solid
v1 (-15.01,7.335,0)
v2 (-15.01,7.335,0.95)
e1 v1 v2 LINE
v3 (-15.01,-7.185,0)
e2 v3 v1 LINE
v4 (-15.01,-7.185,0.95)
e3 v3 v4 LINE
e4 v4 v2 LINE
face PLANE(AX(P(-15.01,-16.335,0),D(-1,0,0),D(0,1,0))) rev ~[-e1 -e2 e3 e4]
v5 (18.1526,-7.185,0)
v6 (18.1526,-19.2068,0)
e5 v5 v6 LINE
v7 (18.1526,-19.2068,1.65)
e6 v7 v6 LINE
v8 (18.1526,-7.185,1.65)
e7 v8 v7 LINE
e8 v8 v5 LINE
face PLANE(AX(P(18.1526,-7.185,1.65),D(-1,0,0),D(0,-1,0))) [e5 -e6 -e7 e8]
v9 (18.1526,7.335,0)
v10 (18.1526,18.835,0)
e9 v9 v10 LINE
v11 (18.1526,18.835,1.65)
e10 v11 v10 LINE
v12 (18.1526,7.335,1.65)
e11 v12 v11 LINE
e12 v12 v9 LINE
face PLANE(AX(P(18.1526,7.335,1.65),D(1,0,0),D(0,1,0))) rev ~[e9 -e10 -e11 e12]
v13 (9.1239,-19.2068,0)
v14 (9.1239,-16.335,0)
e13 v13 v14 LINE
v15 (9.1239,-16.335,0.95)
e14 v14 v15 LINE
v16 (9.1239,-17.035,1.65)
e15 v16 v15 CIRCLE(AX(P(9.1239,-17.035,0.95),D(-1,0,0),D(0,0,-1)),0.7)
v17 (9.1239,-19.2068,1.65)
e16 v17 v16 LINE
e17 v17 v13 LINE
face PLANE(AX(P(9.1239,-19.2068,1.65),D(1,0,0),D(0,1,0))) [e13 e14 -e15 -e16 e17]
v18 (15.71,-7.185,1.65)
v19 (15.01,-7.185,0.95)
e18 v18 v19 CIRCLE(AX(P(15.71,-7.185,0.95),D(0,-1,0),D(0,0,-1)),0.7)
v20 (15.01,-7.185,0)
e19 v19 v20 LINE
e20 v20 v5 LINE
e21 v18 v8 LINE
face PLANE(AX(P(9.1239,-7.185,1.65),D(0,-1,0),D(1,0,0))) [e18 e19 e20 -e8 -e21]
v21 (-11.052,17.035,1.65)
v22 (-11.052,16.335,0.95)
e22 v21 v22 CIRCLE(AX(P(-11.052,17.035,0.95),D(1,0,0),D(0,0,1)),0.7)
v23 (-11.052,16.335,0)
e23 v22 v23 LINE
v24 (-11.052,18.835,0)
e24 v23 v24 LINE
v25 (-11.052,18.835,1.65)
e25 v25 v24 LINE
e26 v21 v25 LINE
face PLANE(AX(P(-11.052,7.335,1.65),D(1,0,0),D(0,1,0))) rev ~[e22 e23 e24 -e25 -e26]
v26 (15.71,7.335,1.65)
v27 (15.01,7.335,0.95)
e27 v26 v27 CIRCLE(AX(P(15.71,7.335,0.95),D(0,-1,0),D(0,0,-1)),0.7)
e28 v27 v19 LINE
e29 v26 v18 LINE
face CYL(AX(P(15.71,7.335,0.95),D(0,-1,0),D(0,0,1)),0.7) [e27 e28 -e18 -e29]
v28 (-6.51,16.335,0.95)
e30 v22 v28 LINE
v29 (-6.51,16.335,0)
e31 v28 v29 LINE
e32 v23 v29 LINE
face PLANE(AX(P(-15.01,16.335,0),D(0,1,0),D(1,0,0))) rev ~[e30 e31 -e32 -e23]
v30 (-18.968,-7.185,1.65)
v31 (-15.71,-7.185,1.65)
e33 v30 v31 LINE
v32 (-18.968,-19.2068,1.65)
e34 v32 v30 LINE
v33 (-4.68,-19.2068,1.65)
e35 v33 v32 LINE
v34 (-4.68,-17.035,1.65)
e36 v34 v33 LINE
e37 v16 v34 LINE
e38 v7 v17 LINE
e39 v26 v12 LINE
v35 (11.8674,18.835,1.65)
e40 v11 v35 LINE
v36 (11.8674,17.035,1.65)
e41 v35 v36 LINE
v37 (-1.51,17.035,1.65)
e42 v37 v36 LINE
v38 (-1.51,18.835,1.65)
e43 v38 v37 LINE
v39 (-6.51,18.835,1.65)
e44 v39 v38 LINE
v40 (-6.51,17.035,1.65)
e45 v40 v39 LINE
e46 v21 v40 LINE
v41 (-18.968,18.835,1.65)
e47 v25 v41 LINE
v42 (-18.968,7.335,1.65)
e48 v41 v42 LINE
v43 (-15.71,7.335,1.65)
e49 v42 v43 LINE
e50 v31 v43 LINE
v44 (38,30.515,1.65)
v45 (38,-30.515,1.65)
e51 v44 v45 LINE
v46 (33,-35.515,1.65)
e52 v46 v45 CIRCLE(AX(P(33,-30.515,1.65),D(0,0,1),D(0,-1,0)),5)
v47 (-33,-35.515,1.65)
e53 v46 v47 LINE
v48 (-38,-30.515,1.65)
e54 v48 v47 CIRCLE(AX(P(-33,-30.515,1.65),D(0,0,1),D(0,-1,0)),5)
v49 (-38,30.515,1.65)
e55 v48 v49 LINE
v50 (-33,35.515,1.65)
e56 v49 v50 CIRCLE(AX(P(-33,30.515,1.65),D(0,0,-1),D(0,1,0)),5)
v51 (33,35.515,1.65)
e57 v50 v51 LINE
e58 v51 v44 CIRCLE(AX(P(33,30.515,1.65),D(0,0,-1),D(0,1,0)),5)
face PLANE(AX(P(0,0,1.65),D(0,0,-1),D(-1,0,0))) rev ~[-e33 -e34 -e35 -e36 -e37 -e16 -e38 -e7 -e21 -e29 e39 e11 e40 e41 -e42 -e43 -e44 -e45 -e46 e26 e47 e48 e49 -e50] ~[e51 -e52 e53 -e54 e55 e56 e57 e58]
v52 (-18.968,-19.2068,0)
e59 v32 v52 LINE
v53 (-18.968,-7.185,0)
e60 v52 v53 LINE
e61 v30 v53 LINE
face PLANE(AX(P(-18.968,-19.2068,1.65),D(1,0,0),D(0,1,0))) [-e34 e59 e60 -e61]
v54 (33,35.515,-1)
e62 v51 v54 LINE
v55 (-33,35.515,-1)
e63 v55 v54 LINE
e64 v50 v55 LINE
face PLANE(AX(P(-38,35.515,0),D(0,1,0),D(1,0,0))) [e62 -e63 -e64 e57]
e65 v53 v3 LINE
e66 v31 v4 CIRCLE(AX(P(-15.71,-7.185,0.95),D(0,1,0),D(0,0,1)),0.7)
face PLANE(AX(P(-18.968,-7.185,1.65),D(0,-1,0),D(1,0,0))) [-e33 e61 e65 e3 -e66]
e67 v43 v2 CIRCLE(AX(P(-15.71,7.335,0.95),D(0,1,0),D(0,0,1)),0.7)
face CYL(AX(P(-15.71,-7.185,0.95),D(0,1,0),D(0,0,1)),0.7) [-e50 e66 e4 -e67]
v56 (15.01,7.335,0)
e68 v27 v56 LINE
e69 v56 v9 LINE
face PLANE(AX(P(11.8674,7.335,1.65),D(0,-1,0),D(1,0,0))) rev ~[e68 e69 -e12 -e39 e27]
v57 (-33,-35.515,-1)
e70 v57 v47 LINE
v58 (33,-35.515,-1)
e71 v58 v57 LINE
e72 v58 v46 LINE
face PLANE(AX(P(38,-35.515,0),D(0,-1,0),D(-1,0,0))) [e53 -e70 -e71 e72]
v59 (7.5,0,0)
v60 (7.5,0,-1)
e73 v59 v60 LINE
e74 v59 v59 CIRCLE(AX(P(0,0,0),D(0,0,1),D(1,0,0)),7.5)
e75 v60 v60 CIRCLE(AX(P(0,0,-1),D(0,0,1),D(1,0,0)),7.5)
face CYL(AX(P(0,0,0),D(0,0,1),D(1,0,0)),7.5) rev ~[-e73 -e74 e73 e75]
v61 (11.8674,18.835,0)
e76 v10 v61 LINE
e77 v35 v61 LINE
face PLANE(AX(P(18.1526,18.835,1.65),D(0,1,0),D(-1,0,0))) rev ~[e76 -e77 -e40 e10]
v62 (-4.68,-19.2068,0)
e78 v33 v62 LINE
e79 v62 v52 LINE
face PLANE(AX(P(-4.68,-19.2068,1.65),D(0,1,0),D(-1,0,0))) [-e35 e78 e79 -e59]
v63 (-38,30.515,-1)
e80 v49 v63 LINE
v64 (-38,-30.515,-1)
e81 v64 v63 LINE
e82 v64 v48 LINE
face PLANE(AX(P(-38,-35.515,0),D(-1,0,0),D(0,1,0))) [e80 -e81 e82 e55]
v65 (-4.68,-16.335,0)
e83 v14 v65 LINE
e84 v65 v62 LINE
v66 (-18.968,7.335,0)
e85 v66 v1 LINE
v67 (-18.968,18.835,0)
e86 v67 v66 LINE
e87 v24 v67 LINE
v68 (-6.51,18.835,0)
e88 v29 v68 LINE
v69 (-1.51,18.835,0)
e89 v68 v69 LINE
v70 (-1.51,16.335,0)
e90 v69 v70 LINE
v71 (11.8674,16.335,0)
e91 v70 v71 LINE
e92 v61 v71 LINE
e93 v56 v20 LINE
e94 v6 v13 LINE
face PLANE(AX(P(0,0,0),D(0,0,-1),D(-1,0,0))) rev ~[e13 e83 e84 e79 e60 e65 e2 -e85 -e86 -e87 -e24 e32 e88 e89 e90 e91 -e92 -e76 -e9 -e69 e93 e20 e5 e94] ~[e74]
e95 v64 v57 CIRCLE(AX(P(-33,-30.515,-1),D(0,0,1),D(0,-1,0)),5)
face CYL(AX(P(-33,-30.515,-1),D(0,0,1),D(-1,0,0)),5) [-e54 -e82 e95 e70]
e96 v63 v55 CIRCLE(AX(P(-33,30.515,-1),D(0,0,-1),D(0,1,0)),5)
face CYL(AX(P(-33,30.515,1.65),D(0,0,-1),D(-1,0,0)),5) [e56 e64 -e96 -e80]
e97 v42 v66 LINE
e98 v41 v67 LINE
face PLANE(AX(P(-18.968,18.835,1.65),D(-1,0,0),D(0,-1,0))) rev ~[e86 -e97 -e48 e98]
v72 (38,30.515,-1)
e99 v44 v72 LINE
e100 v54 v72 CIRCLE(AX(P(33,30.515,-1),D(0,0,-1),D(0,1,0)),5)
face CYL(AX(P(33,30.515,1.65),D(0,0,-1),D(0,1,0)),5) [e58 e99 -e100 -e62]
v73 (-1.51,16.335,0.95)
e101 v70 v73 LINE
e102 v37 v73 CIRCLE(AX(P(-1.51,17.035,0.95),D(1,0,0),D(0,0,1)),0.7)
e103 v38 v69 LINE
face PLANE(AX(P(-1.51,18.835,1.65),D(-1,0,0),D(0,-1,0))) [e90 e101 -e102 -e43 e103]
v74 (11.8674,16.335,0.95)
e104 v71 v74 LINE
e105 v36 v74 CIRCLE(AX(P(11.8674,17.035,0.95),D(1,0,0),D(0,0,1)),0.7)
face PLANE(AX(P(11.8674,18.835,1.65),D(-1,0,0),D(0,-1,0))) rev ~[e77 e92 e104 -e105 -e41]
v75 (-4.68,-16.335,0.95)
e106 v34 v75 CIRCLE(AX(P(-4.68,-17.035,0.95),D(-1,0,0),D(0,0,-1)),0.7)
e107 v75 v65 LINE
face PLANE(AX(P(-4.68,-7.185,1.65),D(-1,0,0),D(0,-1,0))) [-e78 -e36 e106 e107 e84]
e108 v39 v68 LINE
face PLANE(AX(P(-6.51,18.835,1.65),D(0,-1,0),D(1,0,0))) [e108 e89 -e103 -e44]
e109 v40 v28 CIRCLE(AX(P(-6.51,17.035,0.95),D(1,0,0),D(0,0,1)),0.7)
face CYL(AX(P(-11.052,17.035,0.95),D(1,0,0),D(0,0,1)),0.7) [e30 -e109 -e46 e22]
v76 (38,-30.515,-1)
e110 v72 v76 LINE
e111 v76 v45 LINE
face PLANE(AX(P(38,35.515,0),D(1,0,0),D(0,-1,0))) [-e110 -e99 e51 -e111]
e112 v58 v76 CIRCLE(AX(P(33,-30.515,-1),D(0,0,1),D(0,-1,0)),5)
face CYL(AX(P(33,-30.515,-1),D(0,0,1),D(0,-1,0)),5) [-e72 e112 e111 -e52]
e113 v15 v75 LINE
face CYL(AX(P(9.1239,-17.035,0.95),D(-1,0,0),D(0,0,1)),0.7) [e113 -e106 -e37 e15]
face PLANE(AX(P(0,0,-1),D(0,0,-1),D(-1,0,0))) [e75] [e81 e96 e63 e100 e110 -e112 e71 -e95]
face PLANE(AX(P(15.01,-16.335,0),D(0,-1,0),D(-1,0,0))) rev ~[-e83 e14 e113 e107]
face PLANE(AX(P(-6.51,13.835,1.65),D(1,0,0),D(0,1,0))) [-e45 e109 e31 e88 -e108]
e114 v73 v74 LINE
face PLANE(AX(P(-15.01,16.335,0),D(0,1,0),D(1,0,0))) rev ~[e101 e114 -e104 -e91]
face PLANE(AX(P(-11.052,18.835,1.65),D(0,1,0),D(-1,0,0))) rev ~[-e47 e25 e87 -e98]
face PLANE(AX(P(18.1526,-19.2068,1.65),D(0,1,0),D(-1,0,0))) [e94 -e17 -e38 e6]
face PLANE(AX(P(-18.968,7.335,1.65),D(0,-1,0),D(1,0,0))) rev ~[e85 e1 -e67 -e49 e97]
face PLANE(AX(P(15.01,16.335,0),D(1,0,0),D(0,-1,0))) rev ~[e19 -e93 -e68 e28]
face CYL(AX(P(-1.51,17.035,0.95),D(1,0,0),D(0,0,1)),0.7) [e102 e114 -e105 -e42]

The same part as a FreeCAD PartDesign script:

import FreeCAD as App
import Part
import Sketcher


def edges_at(feature, points):
    """Names of the edges that pass closest to the given points."""
    edges = feature.Shape.Edges
    near = lambda p: min(range(len(edges)), key=lambda i: edges[i].distToShape(Part.Vertex(*p))[0])
    return sorted({f"Edge{near(p) + 1}" for p in points})


def add_polygon(sketch, points):
    """Adds a closed chain of lines whose ends are joined by coincident constraints."""
    first, n = sketch.GeometryCount, len(points)
    for a, b in zip(points, points[1:] + points[:1]):
        sketch.addGeometry(Part.LineSegment(App.Vector(*a, 0), App.Vector(*b, 0)), False)
    for i in range(n):
        sketch.addConstraint(Sketcher.Constraint("Coincident", first + i, 2, first + (i + 1) % n, 1))

doc = App.newDocument("Part")
body = doc.addObject("PartDesign::Body", "Body")

# Sketch on XY plane
sketch1 = doc.addObject("Sketcher::SketchObject", "Sketch")
body.addObject(sketch1)
sketch1.AttachmentSupport = (doc.XY_Plane, [""])
sketch1.MapMode = "FlatFace"
add_polygon(sketch1, [(-38, 36), (-38, -36), (38, -36), (38, 36)])  # lines 0-3
add_polygon(sketch1, [(15, -16), (-15, -16), (-15, 16), (15, 16)])  # lines 4-7
sketch1.addConstraint(Sketcher.Constraint("Vertical", 0))
sketch1.addConstraint(Sketcher.Constraint("Horizontal", 1))
sketch1.addConstraint(Sketcher.Constraint("Vertical", 2))
sketch1.addConstraint(Sketcher.Constraint("Horizontal", 3))
sketch1.addConstraint(Sketcher.Constraint("Horizontal", 4))
sketch1.addConstraint(Sketcher.Constraint("Vertical", 5))
sketch1.addConstraint(Sketcher.Constraint("Horizontal", 6))
sketch1.addConstraint(Sketcher.Constraint("Vertical", 7))
sketch1.addConstraint(Sketcher.Constraint("Symmetric", 0, 2, 2, 2, -1, 1))
sketch1.addConstraint(Sketcher.Constraint("Symmetric", 4, 2, 6, 2, -1, 1))
sketch1.addConstraint(Sketcher.Constraint("DistanceX", 1, 1, 1, 2, 76.0))
sketch1.addConstraint(Sketcher.Constraint("DistanceX", 4, 2, 4, 1, 30.02))
sketch1.addConstraint(Sketcher.Constraint("DistanceY", 0, 2, 0, 1, 71.03))
sketch1.addConstraint(Sketcher.Constraint("DistanceY", 5, 1, 5, 2, 32.67))
pad1 = doc.addObject("PartDesign::Pad", "Pad")
body.addObject(pad1)
pad1.Profile = sketch1
pad1.Length = 1.65

# Sketch on XY plane
sketch2 = doc.addObject("Sketcher::SketchObject", "Sketch001")
body.addObject(sketch2)
sketch2.AttachmentSupport = (doc.XY_Plane, [""])
sketch2.MapMode = "FlatFace"
add_polygon(sketch2, [(-38, -36), (38, -36), (38, 36), (-38, 36)])  # lines 0-3
sketch2.addConstraint(Sketcher.Constraint("Horizontal", 0))
sketch2.addConstraint(Sketcher.Constraint("Vertical", 1))
sketch2.addConstraint(Sketcher.Constraint("Horizontal", 2))
sketch2.addConstraint(Sketcher.Constraint("Vertical", 3))
sketch2.addConstraint(Sketcher.Constraint("Symmetric", 0, 2, 2, 2, -1, 1))
sketch2.addConstraint(Sketcher.Constraint("DistanceX", 0, 1, 0, 2, 76.0))
sketch2.addConstraint(Sketcher.Constraint("DistanceY", 1, 1, 1, 2, 71.03))
pad2 = doc.addObject("PartDesign::Pad", "Pad001")
body.addObject(pad2)
pad2.Profile = sketch2
pad2.Length = 1
pad2.Reversed = True

# Sketch on XY plane
sketch3 = doc.addObject("Sketcher::SketchObject", "Sketch002")
body.addObject(sketch3)
sketch3.AttachmentSupport = (doc.XY_Plane, [""])
sketch3.MapMode = "FlatFace"
sketch3.AttachmentOffset = App.Placement(App.Vector(0, 0, 1.65), App.Rotation())
add_polygon(sketch3, [(-5, -7), (-19, -7), (-19, -19), (-5, -19)])  # lines 0-3
add_polygon(sketch3, [(-19, 7), (-11, 7), (-11, 19), (-19, 19)])  # lines 4-7
add_polygon(sketch3, [(-7, 14), (-2, 14), (-2, 19), (-7, 19)])  # lines 8-11
add_polygon(sketch3, [(12, 19), (12, 7), (18, 7), (18, 19)])  # lines 12-15
add_polygon(sketch3, [(9, -7), (9, -19), (18, -19), (18, -7)])  # lines 16-19
sketch3.addConstraint(Sketcher.Constraint("Horizontal", 0))
sketch3.addConstraint(Sketcher.Constraint("Vertical", 1))
sketch3.addConstraint(Sketcher.Constraint("Horizontal", 2))
sketch3.addConstraint(Sketcher.Constraint("Vertical", 3))
sketch3.addConstraint(Sketcher.Constraint("Horizontal", 4))
sketch3.addConstraint(Sketcher.Constraint("Vertical", 5))
sketch3.addConstraint(Sketcher.Constraint("Horizontal", 6))
sketch3.addConstraint(Sketcher.Constraint("Vertical", 7))
sketch3.addConstraint(Sketcher.Constraint("Horizontal", 8))
sketch3.addConstraint(Sketcher.Constraint("Vertical", 9))
sketch3.addConstraint(Sketcher.Constraint("Horizontal", 10))
sketch3.addConstraint(Sketcher.Constraint("Vertical", 11))
sketch3.addConstraint(Sketcher.Constraint("Vertical", 12))
sketch3.addConstraint(Sketcher.Constraint("Horizontal", 13))
sketch3.addConstraint(Sketcher.Constraint("Vertical", 14))
sketch3.addConstraint(Sketcher.Constraint("Horizontal", 15))
sketch3.addConstraint(Sketcher.Constraint("Vertical", 16))
sketch3.addConstraint(Sketcher.Constraint("Horizontal", 17))
sketch3.addConstraint(Sketcher.Constraint("Vertical", 18))
sketch3.addConstraint(Sketcher.Constraint("Horizontal", 19))
sketch3.addConstraint(Sketcher.Constraint("Horizontal", 6, 2, 9, 2))
sketch3.addConstraint(Sketcher.Constraint("Horizontal", 7, 2, 12, 2))
sketch3.addConstraint(Sketcher.Constraint("Horizontal", 10, 2, 14, 2))
sketch3.addConstraint(Sketcher.Constraint("Horizontal", 2, 2, 16, 2))
sketch3.addConstraint(Sketcher.Constraint("Horizontal", 3, 2, 18, 2))
sketch3.addConstraint(Sketcher.Constraint("Vertical", 1, 2, 6, 2))
sketch3.addConstraint(Sketcher.Constraint("Vertical", 14, 2, 17, 2))
sketch3.addConstraint(Sketcher.Constraint("Equal", 10, 9))
sketch3.addConstraint(Sketcher.Constraint("DistanceX", 8, 1, 8, 2, 5.0))
sketch3.addConstraint(Sketcher.Constraint("DistanceY", 5, 1, 5, 2, 11.5))
sketch3.addConstraint(Sketcher.Constraint("DistanceX", 0, 2, 0, 1, 14.288))
sketch3.addConstraint(Sketcher.Constraint("DistanceX", 4, 1, 4, 2, 7.916))
sketch3.addConstraint(Sketcher.Constraint("DistanceX", 2, 2, -1, 1, 4.68))
sketch3.addConstraint(Sketcher.Constraint("DistanceX", 8, 2, -1, 1, 1.51))
sketch3.addConstraint(Sketcher.Constraint("DistanceY", 3, 2, 4, 2, 14.52))
sketch3.addConstraint(Sketcher.Constraint("DistanceX", 13, 1, 13, 2, 6.2852))
sketch3.addConstraint(Sketcher.Constraint("DistanceX", 17, 1, 17, 2, 9.0287))
sketch3.addConstraint(Sketcher.Constraint("DistanceY", 1, 2, 1, 1, 12.0218))
sketch3.addConstraint(Sketcher.Constraint("DistanceY", 0, 2, -1, 1, 7.185))
sketch3.addConstraint(Sketcher.Constraint("DistanceX", -1, 1, 16, 2, 9.124))
pocket1 = doc.addObject("PartDesign::Pocket", "Pocket")
body.addObject(pocket1)
pocket1.Profile = sketch3
pocket1.Length = 1.65
doc.recompute()

fillet = doc.addObject("PartDesign::Fillet", "Fillet")
body.addObject(fillet)
fillet.Base = (pocket1, edges_at(pocket1, [
    (-8.781, 16.335, 1.65),
    (5.179, 16.335, 1.65),
    (15.01, 0.075, 1.65),
    (2.222, -16.335, 1.65),
    (-15.01, 0.075, 1.65),
]))
fillet.Radius = 0.7

# Sketch on XY plane
sketch4 = doc.addObject("Sketcher::SketchObject", "Sketch003")
body.addObject(sketch4)
sketch4.AttachmentSupport = (doc.XY_Plane, [""])
sketch4.MapMode = "FlatFace"
sketch4.addGeometry(Part.Circle(App.Vector(0, 0, 0), App.Vector(0, 0, 1), 8), False)
sketch4.addConstraint(Sketcher.Constraint("Coincident", 0, 3, -1, 1))
sketch4.addConstraint(Sketcher.Constraint("Diameter", 0, 15.0))
pocket2 = doc.addObject("PartDesign::Pocket", "Pocket001")
body.addObject(pocket2)
pocket2.Profile = sketch4
pocket2.Type = "UpToFirst"
doc.recompute()

fillet2 = doc.addObject("PartDesign::Fillet", "Fillet001")
body.addObject(fillet2)
fillet2.Base = (pocket2, edges_at(pocket2, [
    (38, -35.515, 0.325),
    (-38, -35.515, 0.325),
    (-38, 35.515, 0.325),
    (38, 35.515, 0.325),
]))
fillet2.Radius = 5

doc.recompute()
